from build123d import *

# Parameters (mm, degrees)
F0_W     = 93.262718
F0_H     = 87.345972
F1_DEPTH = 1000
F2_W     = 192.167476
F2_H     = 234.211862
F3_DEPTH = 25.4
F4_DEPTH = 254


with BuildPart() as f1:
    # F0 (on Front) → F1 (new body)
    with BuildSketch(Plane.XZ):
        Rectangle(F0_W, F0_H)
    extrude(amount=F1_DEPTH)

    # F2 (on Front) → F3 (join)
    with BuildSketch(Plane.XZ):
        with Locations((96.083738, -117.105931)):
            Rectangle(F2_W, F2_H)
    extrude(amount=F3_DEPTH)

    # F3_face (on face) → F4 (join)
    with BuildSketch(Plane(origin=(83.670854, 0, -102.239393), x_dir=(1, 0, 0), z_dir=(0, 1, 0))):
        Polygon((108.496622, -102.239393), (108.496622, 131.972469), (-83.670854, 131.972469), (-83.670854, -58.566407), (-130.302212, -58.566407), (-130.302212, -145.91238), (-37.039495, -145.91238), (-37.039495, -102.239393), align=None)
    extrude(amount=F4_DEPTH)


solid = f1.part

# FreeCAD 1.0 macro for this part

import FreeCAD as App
import Part
import Sketcher
Q = App.Units.Quantity

doc = App.newDocument("Part")
body = doc.addObject("PartDesign::Body", "Body")

sketch1 = body.newObject("Sketcher::SketchObject", "Sketch")
sketch1.AttachmentSupport = (doc.getObject("XZ_Plane"), [""])
sketch1.MapMode = "FlatFace"
sketch1.addGeometry(Part.LineSegment(App.Vector(-46.631359, 43.672986, 0), App.Vector(-46.631359, -43.672986, 0)), False)
sketch1.addGeometry(Part.LineSegment(App.Vector(-46.631359, -43.672986, 0), App.Vector(46.631359, -43.672986, 0)), False)
sketch1.addGeometry(Part.LineSegment(App.Vector(46.631359, -43.672986, 0), App.Vector(46.631359, 43.672986, 0)), False)
sketch1.addGeometry(Part.LineSegment(App.Vector(46.631359, 43.672986, 0), App.Vector(-46.631359, 43.672986, 0)), False)
sketch1.addConstraint(Sketcher.Constraint("Coincident", 0, 2, 1, 1))
sketch1.addConstraint(Sketcher.Constraint("Coincident", 1, 2, 2, 1))
sketch1.addConstraint(Sketcher.Constraint("Coincident", 2, 2, 3, 1))
sketch1.addConstraint(Sketcher.Constraint("Coincident", 3, 2, 0, 1))
sketch1.addConstraint(Sketcher.Constraint("Vertical", 0))
sketch1.addConstraint(Sketcher.Constraint("Horizontal", 1))
sketch1.addConstraint(Sketcher.Constraint("Vertical", 2))
sketch1.addConstraint(Sketcher.Constraint("Horizontal", 3))
sketch1.addConstraint(Sketcher.Constraint("Symmetric", 0, 2, 2, 2, -1, 1))
sketch1.addConstraint(Sketcher.Constraint("DistanceX", 1, 1, 1, 2, 93.262718))
sketch1.addConstraint(Sketcher.Constraint("DistanceY", 0, 2, 0, 1, 87.345972))
pad1 = body.newObject("PartDesign::Pad", "Pad")
pad1.Profile = sketch1
pad1.Length = 1000

sketch2 = body.newObject("Sketcher::SketchObject", "Sketch001")
sketch2.AttachmentSupport = (doc.getObject("XZ_Plane"), [""])
sketch2.MapMode = "FlatFace"
sketch2.addGeometry(Part.LineSegment(App.Vector(0, 0, 0), App.Vector(0, -234.211862, 0)), False)
sketch2.addGeometry(Part.LineSegment(App.Vector(0, -234.211862, 0), App.Vector(192.167476, -234.211862, 0)), False)
sketch2.addGeometry(Part.LineSegment(App.Vector(192.167476, -234.211862, 0), App.Vector(192.167476, 0, 0)), False)
sketch2.addGeometry(Part.LineSegment(App.Vector(192.167476, 0, 0), App.Vector(0, 0, 0)), False)
sketch2.addConstraint(Sketcher.Constraint("Coincident", 0, 2, 1, 1))
sketch2.addConstraint(Sketcher.Constraint("Coincident", 1, 2, 2, 1))
sketch2.addConstraint(Sketcher.Constraint("Coincident", 2, 2, 3, 1))
sketch2.addConstraint(Sketcher.Constraint("Coincident", 3, 2, 0, 1))
sketch2.addConstraint(Sketcher.Constraint("Vertical", 0))
sketch2.addConstraint(Sketcher.Constraint("Horizontal", 1))
sketch2.addConstraint(Sketcher.Constraint("Vertical", 2))
sketch2.addConstraint(Sketcher.Constraint("Horizontal", 3))
sketch2.addConstraint(Sketcher.Constraint("Coincident", 3, 2, -1, 1))
sketch2.addConstraint(Sketcher.Constraint("DistanceY", 0, 2, 0, 1, 234.211862))
sketch2.addConstraint(Sketcher.Constraint("DistanceX", 1, 1, 1, 2, 192.167476))
pad2 = body.newObject("PartDesign::Pad", "Pad001")
pad2.Profile = sketch2
pad2.Length = Q("1 in")

sketch3 = body.newObject("Sketcher::SketchObject", "Sketch002")
sketch3.AttachmentSupport = (doc.getObject("XZ_Plane"), [""])
sketch3.MapMode = "FlatFace"
sketch3.addGeometry(Part.LineSegment(App.Vector(192.167476, 0, 0), App.Vector(192.167476, -234.211862, 0)), False)
sketch3.addGeometry(Part.LineSegment(App.Vector(192.167476, -234.211862, 0), App.Vector(0, -234.211862, 0)), False)
sketch3.addGeometry(Part.LineSegment(App.Vector(0, -234.211862, 0), App.Vector(0, -43.672986, 0)), False)
sketch3.addGeometry(Part.LineSegment(App.Vector(0, -43.672986, 0), App.Vector(-46.631358, -43.672986, 0)), False)
sketch3.addGeometry(Part.LineSegment(App.Vector(-46.631358, -43.672986, 0), App.Vector(-46.631358, 43.672987, 0)), False)
sketch3.addGeometry(Part.LineSegment(App.Vector(-46.631358, 43.672987, 0), App.Vector(46.631359, 43.672987, 0)), False)
sketch3.addGeometry(Part.LineSegment(App.Vector(46.631359, 43.672987, 0), App.Vector(46.631359, 0, 0)), False)
sketch3.addGeometry(Part.LineSegment(App.Vector(46.631359, 0, 0), App.Vector(192.167476, 0, 0)), False)
sketch3.addConstraint(Sketcher.Constraint("Coincident", 0, 2, 1, 1))
sketch3.addConstraint(Sketcher.Constraint("Coincident", 1, 2, 2, 1))
sketch3.addConstraint(Sketcher.Constraint("Coincident", 2, 2, 3, 1))
sketch3.addConstraint(Sketcher.Constraint("Coincident", 3, 2, 4, 1))
sketch3.addConstraint(Sketcher.Constraint("Coincident", 4, 2, 5, 1))
sketch3.addConstraint(Sketcher.Constraint("Coincident", 5, 2, 6, 1))
sketch3.addConstraint(Sketcher.Constraint("Coincident", 6, 2, 7, 1))
sketch3.addConstraint(Sketcher.Constraint("Coincident", 7, 2, 0, 1))
sketch3.addConstraint(Sketcher.Constraint("Vertical", 0))
sketch3.addConstraint(Sketcher.Constraint("Horizontal", 1))
sketch3.addConstraint(Sketcher.Constraint("Vertical", 2))
sketch3.addConstraint(Sketcher.Constraint("Horizontal", 3))
sketch3.addConstraint(Sketcher.Constraint("Vertical", 4))
sketch3.addConstraint(Sketcher.Constraint("Horizontal", 5))
sketch3.addConstraint(Sketcher.Constraint("Vertical", 6))
sketch3.addConstraint(Sketcher.Constraint("Horizontal", 7))
sketch3.addConstraint(Sketcher.Constraint("Symmetric", 3, 2, 5, 2, -1, 1))
sketch3.addConstraint(Sketcher.Constraint("PointOnObject", 1, 2, -2))
sketch3.addConstraint(Sketcher.Constraint("PointOnObject", 6, 2, -1))
sketch3.addConstraint(Sketcher.Constraint("DistanceY", 0, 2, 0, 1, 234.211862))
sketch3.addConstraint(Sketcher.Constraint("DistanceX", 1, 2, 1, 1, 192.167476))
sketch3.addConstraint(Sketcher.Constraint("DistanceX", 3, 2, 3, 1, 46.631358))
sketch3.addConstraint(Sketcher.Constraint("DistanceY", 2, 1, 2, 2, 190.538876))
pad3 = body.newObject("PartDesign::Pad", "Pad002")
pad3.Profile = sketch3
pad3.Length = Q("10 in")
pad3.Reversed = True

doc.recompute()
